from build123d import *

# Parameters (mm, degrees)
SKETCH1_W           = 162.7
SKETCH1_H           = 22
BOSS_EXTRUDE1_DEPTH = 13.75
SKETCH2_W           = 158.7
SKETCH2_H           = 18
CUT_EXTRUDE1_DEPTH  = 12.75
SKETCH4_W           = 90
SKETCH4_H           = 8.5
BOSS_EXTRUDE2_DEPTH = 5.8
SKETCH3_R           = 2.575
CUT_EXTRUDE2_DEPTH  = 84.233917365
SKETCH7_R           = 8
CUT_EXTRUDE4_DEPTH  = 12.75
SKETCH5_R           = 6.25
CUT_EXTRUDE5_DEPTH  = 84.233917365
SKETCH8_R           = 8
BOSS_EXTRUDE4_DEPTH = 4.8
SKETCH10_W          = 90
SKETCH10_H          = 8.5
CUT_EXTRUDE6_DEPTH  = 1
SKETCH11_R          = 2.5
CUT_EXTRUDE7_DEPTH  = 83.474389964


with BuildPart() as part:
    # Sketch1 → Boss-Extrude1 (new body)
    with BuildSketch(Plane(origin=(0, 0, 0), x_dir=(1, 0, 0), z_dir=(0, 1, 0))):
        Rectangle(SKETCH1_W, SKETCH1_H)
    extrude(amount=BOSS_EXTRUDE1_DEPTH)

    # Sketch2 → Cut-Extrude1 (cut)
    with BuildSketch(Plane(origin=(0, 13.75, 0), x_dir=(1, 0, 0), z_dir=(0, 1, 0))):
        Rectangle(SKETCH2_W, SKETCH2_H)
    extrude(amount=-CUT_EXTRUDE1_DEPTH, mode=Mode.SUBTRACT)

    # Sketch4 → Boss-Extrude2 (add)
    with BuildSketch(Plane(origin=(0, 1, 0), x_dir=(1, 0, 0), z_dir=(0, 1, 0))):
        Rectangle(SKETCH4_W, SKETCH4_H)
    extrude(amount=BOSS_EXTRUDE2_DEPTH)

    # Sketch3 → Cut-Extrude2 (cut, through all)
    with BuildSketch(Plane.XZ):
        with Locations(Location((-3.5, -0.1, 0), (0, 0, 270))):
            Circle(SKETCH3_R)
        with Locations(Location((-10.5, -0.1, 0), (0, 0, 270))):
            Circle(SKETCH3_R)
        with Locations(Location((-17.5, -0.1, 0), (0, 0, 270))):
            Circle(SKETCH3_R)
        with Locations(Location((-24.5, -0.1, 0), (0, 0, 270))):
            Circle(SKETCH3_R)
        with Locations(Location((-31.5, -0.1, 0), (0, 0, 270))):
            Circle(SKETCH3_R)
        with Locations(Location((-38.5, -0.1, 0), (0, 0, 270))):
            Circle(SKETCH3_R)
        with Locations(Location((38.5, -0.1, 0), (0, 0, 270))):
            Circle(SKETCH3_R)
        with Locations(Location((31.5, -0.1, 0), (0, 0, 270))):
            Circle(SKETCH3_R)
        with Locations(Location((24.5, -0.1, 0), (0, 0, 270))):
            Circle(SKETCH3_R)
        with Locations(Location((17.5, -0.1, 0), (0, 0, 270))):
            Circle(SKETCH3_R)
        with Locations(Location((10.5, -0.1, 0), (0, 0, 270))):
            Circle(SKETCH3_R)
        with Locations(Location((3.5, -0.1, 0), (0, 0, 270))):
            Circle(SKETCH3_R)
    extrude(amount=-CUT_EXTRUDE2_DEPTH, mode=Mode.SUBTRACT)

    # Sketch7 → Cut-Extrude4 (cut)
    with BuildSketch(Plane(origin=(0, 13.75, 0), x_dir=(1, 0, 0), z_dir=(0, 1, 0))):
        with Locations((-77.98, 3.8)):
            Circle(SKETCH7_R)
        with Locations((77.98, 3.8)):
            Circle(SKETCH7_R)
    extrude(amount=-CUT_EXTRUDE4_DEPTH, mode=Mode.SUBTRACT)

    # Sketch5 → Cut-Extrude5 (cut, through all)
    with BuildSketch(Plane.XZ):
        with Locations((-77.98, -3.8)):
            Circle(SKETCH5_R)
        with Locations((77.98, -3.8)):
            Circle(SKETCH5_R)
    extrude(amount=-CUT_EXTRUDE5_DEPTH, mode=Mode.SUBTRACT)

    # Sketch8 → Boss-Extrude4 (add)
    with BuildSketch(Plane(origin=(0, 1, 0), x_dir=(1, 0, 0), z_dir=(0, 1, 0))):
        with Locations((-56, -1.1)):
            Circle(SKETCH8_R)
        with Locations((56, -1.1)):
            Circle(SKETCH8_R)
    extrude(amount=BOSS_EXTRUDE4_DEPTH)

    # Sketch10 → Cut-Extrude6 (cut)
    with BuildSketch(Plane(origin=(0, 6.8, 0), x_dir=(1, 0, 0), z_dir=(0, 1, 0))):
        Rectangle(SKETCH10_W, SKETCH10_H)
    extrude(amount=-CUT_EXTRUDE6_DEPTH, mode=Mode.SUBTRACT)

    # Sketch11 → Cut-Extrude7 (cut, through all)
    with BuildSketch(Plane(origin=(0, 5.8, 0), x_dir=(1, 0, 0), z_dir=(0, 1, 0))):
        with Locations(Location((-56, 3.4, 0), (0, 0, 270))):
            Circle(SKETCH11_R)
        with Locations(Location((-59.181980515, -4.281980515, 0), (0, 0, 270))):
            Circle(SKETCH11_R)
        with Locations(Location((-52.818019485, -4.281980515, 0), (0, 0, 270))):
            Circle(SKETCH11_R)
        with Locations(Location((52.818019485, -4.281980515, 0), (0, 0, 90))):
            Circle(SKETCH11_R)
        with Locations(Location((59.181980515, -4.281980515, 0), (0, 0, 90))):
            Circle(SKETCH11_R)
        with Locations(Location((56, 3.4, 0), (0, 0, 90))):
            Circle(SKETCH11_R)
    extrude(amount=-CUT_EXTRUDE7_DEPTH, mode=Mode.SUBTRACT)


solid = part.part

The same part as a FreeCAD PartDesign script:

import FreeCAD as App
import Part
import Sketcher
Q = App.Units.Quantity


def add_polygon(sketch, points):
    """Adds a closed chain of lines whose ends are joined by coincident constraints."""
    first, n = sketch.GeometryCount, len(points)
    for a, b in zip(points, points[1:] + points[:1]):
        sketch.addGeometry(Part.LineSegment(App.Vector(*a, 0), App.Vector(*b, 0)), False)
    for i in range(n):
        sketch.addConstraint(Sketcher.Constraint("Coincident", first + i, 2, first + (i + 1) % n, 1))

doc = App.newDocument("Part")
body = doc.addObject("PartDesign::Body", "Body")

# Sketch on XZ plane
sketch1 = body.newObject("Sketcher::SketchObject", "Sketch")
sketch1.AttachmentSupport = (doc.getObject("XZ_Plane"), [""])
sketch1.MapMode = "FlatFace"
add_polygon(sketch1, [(-81, -11), (-81, 11), (81, 11), (81, -11)])  # lines 0-3
sketch1.addConstraint(Sketcher.Constraint("Vertical", 0))
sketch1.addConstraint(Sketcher.Constraint("Horizontal", 1))
sketch1.addConstraint(Sketcher.Constraint("Vertical", 2))
sketch1.addConstraint(Sketcher.Constraint("Horizontal", 3))
sketch1.addConstraint(Sketcher.Constraint("Symmetric", 0, 2, 2, 2, -1, 1))
sketch1.addConstraint(Sketcher.Constraint("DistanceY", 0, 1, 0, 2, Q("22 mm")))
sketch1.addConstraint(Sketcher.Constraint("DistanceX", 1, 1, 1, 2, Q("162.7 mm")))
pad1 = body.newObject("PartDesign::Pad", "Pad")
pad1.Profile = sketch1
pad1.Length = 13.75
pad1.Reversed = True

# Sketch on XZ plane
sketch2 = body.newObject("Sketcher::SketchObject", "Sketch001")
sketch2.AttachmentSupport = (doc.getObject("XZ_Plane"), [""])
sketch2.MapMode = "FlatFace"
sketch2.AttachmentOffset = App.Placement(App.Vector(0, 0, -13.75), App.Rotation())
add_polygon(sketch2, [(-79, -9), (-79, 9), (79, 9), (79, -9)])  # lines 0-3
sketch2.addConstraint(Sketcher.Constraint("Vertical", 0))
sketch2.addConstraint(Sketcher.Constraint("Horizontal", 1))
sketch2.addConstraint(Sketcher.Constraint("Vertical", 2))
sketch2.addConstraint(Sketcher.Constraint("Horizontal", 3))
sketch2.addConstraint(Sketcher.Constraint("Symmetric", 0, 2, 2, 2, -1, 1))
sketch2.addConstraint(Sketcher.Constraint("DistanceY", 0, 1, 0, 2, Q("18 mm")))
sketch2.addConstraint(Sketcher.Constraint("DistanceX", 1, 1, 1, 2, Q("158.7 mm")))
pocket1 = body.newObject("PartDesign::Pocket", "Pocket")
pocket1.Profile = sketch2
pocket1.Length = 12.75
pocket1.Reversed = True

# Sketch on XZ plane
sketch3 = body.newObject("Sketcher::SketchObject", "Sketch002")
sketch3.AttachmentSupport = (doc.getObject("XZ_Plane"), [""])
sketch3.MapMode = "FlatFace"
sketch3.AttachmentOffset = App.Placement(App.Vector(0, 0, -1), App.Rotation())
add_polygon(sketch3, [(-45, -4), (-45, 4), (45, 4), (45, -4)])  # lines 0-3
sketch3.addConstraint(Sketcher.Constraint("Vertical", 0))
sketch3.addConstraint(Sketcher.Constraint("Horizontal", 1))
sketch3.addConstraint(Sketcher.Constraint("Vertical", 2))
sketch3.addConstraint(Sketcher.Constraint("Horizontal", 3))
sketch3.addConstraint(Sketcher.Constraint("Symmetric", 0, 2, 2, 2, -1, 1))
sketch3.addConstraint(Sketcher.Constraint("DistanceX", 1, 1, 1, 2, Q("90 mm")))
sketch3.addConstraint(Sketcher.Constraint("DistanceY", 0, 1, 0, 2, Q("8.5 mm")))
pad2 = body.newObject("PartDesign::Pad", "Pad001")
pad2.Profile = sketch3
pad2.Length = 5.8
pad2.Reversed = True

# Sketch on XZ plane
sketch4 = body.newObject("Sketcher::SketchObject", "Sketch003")
sketch4.AttachmentSupport = (doc.getObject("XZ_Plane"), [""])
sketch4.MapMode = "FlatFace"
sketch4.addGeometry(Part.Circle(App.Vector(-3.5, -0.1, 0), App.Vector(0, 0, 1), 2.6), False)
sketch4.addGeometry(Part.Circle(App.Vector(-10.5, -0.1, 0), App.Vector(0, 0, 1), 2.6), False)
sketch4.addGeometry(Part.Circle(App.Vector(-17.5, -0.1, 0), App.Vector(0, 0, 1), 2.6), False)
sketch4.addGeometry(Part.Circle(App.Vector(-24.5, -0.1, 0), App.Vector(0, 0, 1), 2.6), False)
sketch4.addGeometry(Part.Circle(App.Vector(-31.5, -0.1, 0), App.Vector(0, 0, 1), 2.6), False)
sketch4.addGeometry(Part.Circle(App.Vector(-38.5, -0.1, 0), App.Vector(0, 0, 1), 2.6), False)
sketch4.addGeometry(Part.Circle(App.Vector(38.5, -0.1, 0), App.Vector(0, 0, 1), 2.6), False)
sketch4.addGeometry(Part.Circle(App.Vector(31.5, -0.1, 0), App.Vector(0, 0, 1), 2.6), False)
sketch4.addGeometry(Part.Circle(App.Vector(24.5, -0.1, 0), App.Vector(0, 0, 1), 2.6), False)
sketch4.addGeometry(Part.Circle(App.Vector(17.5, -0.1, 0), App.Vector(0, 0, 1), 2.6), False)
sketch4.addGeometry(Part.Circle(App.Vector(10.5, -0.1, 0), App.Vector(0, 0, 1), 2.6), False)
sketch4.addGeometry(Part.Circle(App.Vector(3.5, -0.1, 0), App.Vector(0, 0, 1), 2.6), False)
sketch4.addConstraint(Sketcher.Constraint("Equal", 0, 1))
sketch4.addConstraint(Sketcher.Constraint("Equal", 1, 2))
sketch4.addConstraint(Sketcher.Constraint("Equal", 2, 3))
sketch4.addConstraint(Sketcher.Constraint("Equal", 3, 4))
sketch4.addConstraint(Sketcher.Constraint("Equal", 4, 5))
sketch4.addConstraint(Sketcher.Constraint("Equal", 5, 6))
sketch4.addConstraint(Sketcher.Constraint("Equal", 6, 7))
sketch4.addConstraint(Sketcher.Constraint("Equal", 7, 8))
sketch4.addConstraint(Sketcher.Constraint("Equal", 8, 9))
sketch4.addConstraint(Sketcher.Constraint("Equal", 9, 10))
sketch4.addConstraint(Sketcher.Constraint("Equal", 10, 11))
sketch4.addConstraint(Sketcher.Constraint("Symmetric", 5, 3, 6, 3, -2))
sketch4.addConstraint(Sketcher.Constraint("Symmetric", 4, 3, 7, 3, -2))
sketch4.addConstraint(Sketcher.Constraint("Symmetric", 3, 3, 8, 3, -2))
sketch4.addConstraint(Sketcher.Constraint("Symmetric", 2, 3, 9, 3, -2))
sketch4.addConstraint(Sketcher.Constraint("Symmetric", 1, 3, 10, 3, -2))
sketch4.addConstraint(Sketcher.Constraint("Symmetric", 0, 3, 11, 3, -2))
sketch4.addConstraint(Sketcher.Constraint("Horizontal", 0, 3, 1, 3))
sketch4.addConstraint(Sketcher.Constraint("Horizontal", 1, 3, 2, 3))
sketch4.addConstraint(Sketcher.Constraint("Horizontal", 2, 3, 3, 3))
sketch4.addConstraint(Sketcher.Constraint("Horizontal", 3, 3, 4, 3))
sketch4.addConstraint(Sketcher.Constraint("Horizontal", 4, 3, 5, 3))
sketch4.addConstraint(Sketcher.Constraint("Diameter", 0, Q("5.15 mm")))
sketch4.addConstraint(Sketcher.Constraint("DistanceX", 1, 3, 0, 3, Q("7 mm")))
sketch4.addConstraint(Sketcher.Constraint("DistanceX", 2, 3, 1, 3, Q("7 mm")))
sketch4.addConstraint(Sketcher.Constraint("DistanceX", 3, 3, 2, 3, Q("7 mm")))
sketch4.addConstraint(Sketcher.Constraint("DistanceX", 4, 3, 3, 3, Q("7 mm")))
sketch4.addConstraint(Sketcher.Constraint("DistanceX", 5, 3, 4, 3, Q("7 mm")))
sketch4.addConstraint(Sketcher.Constraint("DistanceX", 0, 3, 6, 3, Q("42 mm")))
sketch4.addConstraint(Sketcher.Constraint("DistanceY", 0, 3, -1, 1, Q("0.1 mm")))
pocket2 = body.newObject("PartDesign::Pocket", "Pocket001")
pocket2.Profile = sketch4
pocket2.Type = "ThroughAll"

# Sketch on XZ plane
sketch5 = body.newObject("Sketcher::SketchObject", "Sketch004")
sketch5.AttachmentSupport = (doc.getObject("XZ_Plane"), [""])
sketch5.MapMode = "FlatFace"
sketch5.AttachmentOffset = App.Placement(App.Vector(0, 0, -13.75), App.Rotation())
sketch5.addGeometry(Part.Circle(App.Vector(-78, -4, 0), App.Vector(0, 0, 1), 8), False)
sketch5.addGeometry(Part.Circle(App.Vector(78, -4, 0), App.Vector(0, 0, 1), 8), False)
sketch5.addConstraint(Sketcher.Constraint("Equal", 0, 1))
sketch5.addConstraint(Sketcher.Constraint("Symmetric", 0, 3, 1, 3, -2))
sketch5.addConstraint(Sketcher.Constraint("Diameter", 0, Q("16 mm")))
sketch5.addConstraint(Sketcher.Constraint("DistanceY", 0, 3, -1, 1, Q("3.8 mm")))
sketch5.addConstraint(Sketcher.Constraint("DistanceX", 0, 3, -1, 1, Q("77.98 mm")))
pocket3 = body.newObject("PartDesign::Pocket", "Pocket002")
pocket3.Profile = sketch5
pocket3.Length = 12.75
pocket3.Reversed = True

# Sketch on XZ plane
sketch6 = body.newObject("Sketcher::SketchObject", "Sketch005")
sketch6.AttachmentSupport = (doc.getObject("XZ_Plane"), [""])
sketch6.MapMode = "FlatFace"
sketch6.addGeometry(Part.Circle(App.Vector(-78, -4, 0), App.Vector(0, 0, 1), 6), False)
sketch6.addGeometry(Part.Circle(App.Vector(78, -4, 0), App.Vector(0, 0, 1), 6), False)
sketch6.addConstraint(Sketcher.Constraint("Equal", 0, 1))
sketch6.addConstraint(Sketcher.Constraint("Symmetric", 0, 3, 1, 3, -2))
sketch6.addConstraint(Sketcher.Constraint("Diameter", 0, Q("12.5 mm")))
sketch6.addConstraint(Sketcher.Constraint("DistanceY", 0, 3, -1, 1, Q("3.8 mm")))
sketch6.addConstraint(Sketcher.Constraint("DistanceX", 0, 3, -1, 1, Q("77.98 mm")))
pocket4 = body.newObject("PartDesign::Pocket", "Pocket003")
pocket4.Profile = sketch6
pocket4.Type = "ThroughAll"

# Sketch on XZ plane
sketch7 = body.newObject("Sketcher::SketchObject", "Sketch006")
sketch7.AttachmentSupport = (doc.getObject("XZ_Plane"), [""])
sketch7.MapMode = "FlatFace"
sketch7.AttachmentOffset = App.Placement(App.Vector(0, 0, -1), App.Rotation())
sketch7.addGeometry(Part.Circle(App.Vector(-56, 1, 0), App.Vector(0, 0, 1), 8), False)
sketch7.addGeometry(Part.Circle(App.Vector(56, 1, 0), App.Vector(0, 0, 1), 8), False)
sketch7.addConstraint(Sketcher.Constraint("Equal", 0, 1))
sketch7.addConstraint(Sketcher.Constraint("Symmetric", 0, 3, 1, 3, -2))
sketch7.addConstraint(Sketcher.Constraint("Diameter", 0, Q("16 mm")))
sketch7.addConstraint(Sketcher.Constraint("DistanceX", 0, 3, -1, 1, Q("56 mm")))
sketch7.addConstraint(Sketcher.Constraint("DistanceY", -1, 1, 0, 3, Q("1.1 mm")))
pad3 = body.newObject("PartDesign::Pad", "Pad002")
pad3.Profile = sketch7
pad3.Length = 4.8
pad3.Reversed = True

# Sketch on XZ plane
sketch8 = body.newObject("Sketcher::SketchObject", "Sketch007")
sketch8.AttachmentSupport = (doc.getObject("XZ_Plane"), [""])
sketch8.MapMode = "FlatFace"
sketch8.AttachmentOffset = App.Placement(App.Vector(0, 0, -6.8), App.Rotation())
add_polygon(sketch8, [(-45, -4), (-45, 4), (45, 4), (45, -4)])  # lines 0-3
sketch8.addConstraint(Sketcher.Constraint("Vertical", 0))
sketch8.addConstraint(Sketcher.Constraint("Horizontal", 1))
sketch8.addConstraint(Sketcher.Constraint("Vertical", 2))
sketch8.addConstraint(Sketcher.Constraint("Horizontal", 3))
sketch8.addConstraint(Sketcher.Constraint("Symmetric", 0, 2, 2, 2, -1, 1))
sketch8.addConstraint(Sketcher.Constraint("DistanceX", 1, 1, 1, 2, Q("90 mm")))
sketch8.addConstraint(Sketcher.Constraint("DistanceY", 0, 1, 0, 2, Q("8.5 mm")))
pocket5 = body.newObject("PartDesign::Pocket", "Pocket004")
pocket5.Profile = sketch8
pocket5.Length = 1
pocket5.Reversed = True

# Sketch on XZ plane
sketch9 = body.newObject("Sketcher::SketchObject", "Sketch008")
sketch9.AttachmentSupport = (doc.getObject("XZ_Plane"), [""])
sketch9.MapMode = "FlatFace"
sketch9.AttachmentOffset = App.Placement(App.Vector(0, 0, -5.8), App.Rotation())
sketch9.addGeometry(Part.Circle(App.Vector(-56, -3.4, 0), App.Vector(0, 0, 1), 2.5), False)
sketch9.addGeometry(Part.Circle(App.Vector(-59.2, 4.3, 0), App.Vector(0, 0, 1), 2.5), False)
sketch9.addGeometry(Part.Circle(App.Vector(-52.8, 4.3, 0), App.Vector(0, 0, 1), 2.5), False)
sketch9.addGeometry(Part.Circle(App.Vector(52.8, 4.3, 0), App.Vector(0, 0, 1), 2.5), False)
sketch9.addGeometry(Part.Circle(App.Vector(59.2, 4.3, 0), App.Vector(0, 0, 1), 2.5), False)
sketch9.addGeometry(Part.Circle(App.Vector(56, -3.4, 0), App.Vector(0, 0, 1), 2.5), False)
sketch9.addConstraint(Sketcher.Constraint("Equal", 0, 1))
sketch9.addConstraint(Sketcher.Constraint("Equal", 1, 2))
sketch9.addConstraint(Sketcher.Constraint("Equal", 2, 3))
sketch9.addConstraint(Sketcher.Constraint("Equal", 3, 4))
sketch9.addConstraint(Sketcher.Constraint("Equal", 4, 5))
sketch9.addConstraint(Sketcher.Constraint("Symmetric", 2, 3, 3, 3, -2))
sketch9.addConstraint(Sketcher.Constraint("Symmetric", 1, 3, 4, 3, -2))
sketch9.addConstraint(Sketcher.Constraint("Symmetric", 0, 3, 5, 3, -2))
sketch9.addConstraint(Sketcher.Constraint("Horizontal", 1, 3, 2, 3))
sketch9.addConstraint(Sketcher.Constraint("Diameter", 0, Q("5 mm")))
sketch9.addConstraint(Sketcher.Constraint("DistanceX", 0, 3, -1, 1, Q("56 mm")))
sketch9.addConstraint(Sketcher.Constraint("DistanceX", 1, 3, 3, 3, Q("112 mm")))
sketch9.addConstraint(Sketcher.Constraint("DistanceY", 0, 3, -1, 1, Q("3.4 mm")))
sketch9.addConstraint(Sketcher.Constraint("DistanceX", 1, 3, -1, 1, Q("59.181981 mm")))
sketch9.addConstraint(Sketcher.Constraint("DistanceY", -1, 1, 1, 3, Q("4.281981 mm")))
pocket6 = body.newObject("PartDesign::Pocket", "Pocket005")
pocket6.Profile = sketch9
pocket6.Type = "ThroughAll"
pocket6.Reversed = True

doc.recompute()
